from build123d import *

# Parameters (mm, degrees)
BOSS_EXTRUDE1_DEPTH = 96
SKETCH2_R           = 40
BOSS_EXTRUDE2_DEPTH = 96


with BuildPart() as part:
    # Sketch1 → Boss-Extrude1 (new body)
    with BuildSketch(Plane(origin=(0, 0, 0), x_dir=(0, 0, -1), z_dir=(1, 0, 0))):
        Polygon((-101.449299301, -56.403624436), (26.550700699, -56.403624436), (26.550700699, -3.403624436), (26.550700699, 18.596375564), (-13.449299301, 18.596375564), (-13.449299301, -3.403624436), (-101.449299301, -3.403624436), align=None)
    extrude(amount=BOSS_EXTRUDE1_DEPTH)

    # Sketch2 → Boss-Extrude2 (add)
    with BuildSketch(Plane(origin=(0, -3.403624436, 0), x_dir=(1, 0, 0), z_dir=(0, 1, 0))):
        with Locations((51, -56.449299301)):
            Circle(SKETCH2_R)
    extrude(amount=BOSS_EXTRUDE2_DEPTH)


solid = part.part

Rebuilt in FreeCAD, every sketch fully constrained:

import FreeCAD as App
import Part
import Sketcher

doc = App.newDocument("Part")
body = doc.addObject("PartDesign::Body", "Body")

# Sketch on YZ plane
sketch1 = body.newObject("Sketcher::SketchObject", "Sketch")
sketch1.AttachmentSupport = (doc.getObject("YZ_Plane"), [""])
sketch1.MapMode = "FlatFace"
sketch1.addGeometry([
    Part.LineSegment(App.Vector(-56.403624, 101.449299, 0), App.Vector(-56.403624, -26.550701, 0)),  # 0
    Part.LineSegment(App.Vector(-56.403624, -26.550701, 0), App.Vector(18.596376, -26.550701, 0)),  # 1
    Part.LineSegment(App.Vector(18.596376, -26.550701, 0), App.Vector(18.596376, 13.449299, 0)),  # 2
    Part.LineSegment(App.Vector(18.596376, 13.449299, 0), App.Vector(-3.403624, 13.449299, 0)),  # 3
    Part.LineSegment(App.Vector(-3.403624, 13.449299, 0), App.Vector(-3.403624, 101.449299, 0)),  # 4
    Part.LineSegment(App.Vector(-3.403624, 101.449299, 0), App.Vector(-56.403624, 101.449299, 0)),  # 5
], False)
sketch1.addConstraint([
    Sketcher.Constraint("Coincident", 0, 2, 1, 1),
    Sketcher.Constraint("Coincident", 1, 2, 2, 1),
    Sketcher.Constraint("Coincident", 2, 2, 3, 1),
    Sketcher.Constraint("Coincident", 3, 2, 4, 1),
    Sketcher.Constraint("Coincident", 4, 2, 5, 1),
    Sketcher.Constraint("Coincident", 5, 2, 0, 1),
    Sketcher.Constraint("Vertical", 0),
    Sketcher.Constraint("Horizontal", 1),
    Sketcher.Constraint("Vertical", 2),
    Sketcher.Constraint("Horizontal", 3),
    Sketcher.Constraint("Vertical", 4),
    Sketcher.Constraint("Horizontal", 5),
    Sketcher.Constraint("DistanceX", 1, 1, 1, 2, 75.0),
    Sketcher.Constraint("DistanceX", 3, 2, 3, 1, 22.0),
    Sketcher.Constraint("DistanceY", 0, 2, 0, 1, 128.0),
    Sketcher.Constraint("DistanceY", 2, 1, 2, 2, 40.0),
    Sketcher.Constraint("DistanceY", 0, 2, -1, 1, 26.550701),
    Sketcher.Constraint("DistanceX", 0, 2, -1, 1, 56.403624),
])
pad1 = body.newObject("PartDesign::Pad", "Pad")
pad1.Profile = sketch1
pad1.Length = 96

# Sketch on XZ plane
sketch2 = body.newObject("Sketcher::SketchObject", "Sketch001")
sketch2.AttachmentSupport = (doc.getObject("XZ_Plane"), [""])
sketch2.MapMode = "FlatFace"
sketch2.AttachmentOffset = App.Placement(App.Vector(0, 0, 3.403624), App.Rotation())
sketch2.addGeometry(Part.Circle(App.Vector(51, 56.449299, 0), App.Vector(0, 0, 1), 40), False)
sketch2.addConstraint([
    Sketcher.Constraint("Diameter", 0, 80.0),
    Sketcher.Constraint("DistanceX", -1, 1, 0, 3, 51.0),
    Sketcher.Constraint("DistanceY", -1, 1, 0, 3, 56.449299),
])
pad2 = body.newObject("PartDesign::Pad", "Pad001")
pad2.Profile = sketch2
pad2.Length = 96
pad2.Reversed = True

doc.recompute()
